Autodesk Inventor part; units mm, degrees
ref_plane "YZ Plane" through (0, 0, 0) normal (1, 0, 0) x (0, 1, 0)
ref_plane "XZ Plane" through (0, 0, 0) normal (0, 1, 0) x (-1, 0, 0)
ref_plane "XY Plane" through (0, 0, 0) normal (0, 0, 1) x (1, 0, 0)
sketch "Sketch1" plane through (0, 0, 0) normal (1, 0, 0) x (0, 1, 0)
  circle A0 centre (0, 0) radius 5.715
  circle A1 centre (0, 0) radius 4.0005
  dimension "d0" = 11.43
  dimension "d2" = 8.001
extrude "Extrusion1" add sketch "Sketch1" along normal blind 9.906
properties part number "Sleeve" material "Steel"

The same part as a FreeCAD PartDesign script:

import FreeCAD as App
import Part
import Sketcher
from FreeCAD import Vector
Q = App.Units.Quantity

doc = App.newDocument("Part")
body = doc.addObject("PartDesign::Body", "Body")

# Sketch on YZ plane
sketch1 = body.newObject("Sketcher::SketchObject", "Sketch")
sketch1.AttachmentSupport = (doc.getObject("YZ_Plane"), [""])
sketch1.MapMode = "FlatFace"
sketch1.addGeometry([
    Part.Circle(Vector(0, 0, 0), Vector(0, 0, 1), 5.7),
    Part.Circle(Vector(0, 0, 0), Vector(0, 0, 1), 4),
], False)
sketch1.addConstraint([
    Sketcher.Constraint("Coincident", 0, 3, -1, 1),
    Sketcher.Constraint("Coincident", 1, 3, -1, 1),
    Sketcher.Constraint("Diameter", 0, Q("0.45 in")),
    Sketcher.Constraint("Diameter", 1, Q("0.315 in")),
])
pad1 = body.newObject("PartDesign::Pad", "Pad")
pad1.Profile = sketch1
pad1.Length = Q("0.39 in")

doc.recompute()
